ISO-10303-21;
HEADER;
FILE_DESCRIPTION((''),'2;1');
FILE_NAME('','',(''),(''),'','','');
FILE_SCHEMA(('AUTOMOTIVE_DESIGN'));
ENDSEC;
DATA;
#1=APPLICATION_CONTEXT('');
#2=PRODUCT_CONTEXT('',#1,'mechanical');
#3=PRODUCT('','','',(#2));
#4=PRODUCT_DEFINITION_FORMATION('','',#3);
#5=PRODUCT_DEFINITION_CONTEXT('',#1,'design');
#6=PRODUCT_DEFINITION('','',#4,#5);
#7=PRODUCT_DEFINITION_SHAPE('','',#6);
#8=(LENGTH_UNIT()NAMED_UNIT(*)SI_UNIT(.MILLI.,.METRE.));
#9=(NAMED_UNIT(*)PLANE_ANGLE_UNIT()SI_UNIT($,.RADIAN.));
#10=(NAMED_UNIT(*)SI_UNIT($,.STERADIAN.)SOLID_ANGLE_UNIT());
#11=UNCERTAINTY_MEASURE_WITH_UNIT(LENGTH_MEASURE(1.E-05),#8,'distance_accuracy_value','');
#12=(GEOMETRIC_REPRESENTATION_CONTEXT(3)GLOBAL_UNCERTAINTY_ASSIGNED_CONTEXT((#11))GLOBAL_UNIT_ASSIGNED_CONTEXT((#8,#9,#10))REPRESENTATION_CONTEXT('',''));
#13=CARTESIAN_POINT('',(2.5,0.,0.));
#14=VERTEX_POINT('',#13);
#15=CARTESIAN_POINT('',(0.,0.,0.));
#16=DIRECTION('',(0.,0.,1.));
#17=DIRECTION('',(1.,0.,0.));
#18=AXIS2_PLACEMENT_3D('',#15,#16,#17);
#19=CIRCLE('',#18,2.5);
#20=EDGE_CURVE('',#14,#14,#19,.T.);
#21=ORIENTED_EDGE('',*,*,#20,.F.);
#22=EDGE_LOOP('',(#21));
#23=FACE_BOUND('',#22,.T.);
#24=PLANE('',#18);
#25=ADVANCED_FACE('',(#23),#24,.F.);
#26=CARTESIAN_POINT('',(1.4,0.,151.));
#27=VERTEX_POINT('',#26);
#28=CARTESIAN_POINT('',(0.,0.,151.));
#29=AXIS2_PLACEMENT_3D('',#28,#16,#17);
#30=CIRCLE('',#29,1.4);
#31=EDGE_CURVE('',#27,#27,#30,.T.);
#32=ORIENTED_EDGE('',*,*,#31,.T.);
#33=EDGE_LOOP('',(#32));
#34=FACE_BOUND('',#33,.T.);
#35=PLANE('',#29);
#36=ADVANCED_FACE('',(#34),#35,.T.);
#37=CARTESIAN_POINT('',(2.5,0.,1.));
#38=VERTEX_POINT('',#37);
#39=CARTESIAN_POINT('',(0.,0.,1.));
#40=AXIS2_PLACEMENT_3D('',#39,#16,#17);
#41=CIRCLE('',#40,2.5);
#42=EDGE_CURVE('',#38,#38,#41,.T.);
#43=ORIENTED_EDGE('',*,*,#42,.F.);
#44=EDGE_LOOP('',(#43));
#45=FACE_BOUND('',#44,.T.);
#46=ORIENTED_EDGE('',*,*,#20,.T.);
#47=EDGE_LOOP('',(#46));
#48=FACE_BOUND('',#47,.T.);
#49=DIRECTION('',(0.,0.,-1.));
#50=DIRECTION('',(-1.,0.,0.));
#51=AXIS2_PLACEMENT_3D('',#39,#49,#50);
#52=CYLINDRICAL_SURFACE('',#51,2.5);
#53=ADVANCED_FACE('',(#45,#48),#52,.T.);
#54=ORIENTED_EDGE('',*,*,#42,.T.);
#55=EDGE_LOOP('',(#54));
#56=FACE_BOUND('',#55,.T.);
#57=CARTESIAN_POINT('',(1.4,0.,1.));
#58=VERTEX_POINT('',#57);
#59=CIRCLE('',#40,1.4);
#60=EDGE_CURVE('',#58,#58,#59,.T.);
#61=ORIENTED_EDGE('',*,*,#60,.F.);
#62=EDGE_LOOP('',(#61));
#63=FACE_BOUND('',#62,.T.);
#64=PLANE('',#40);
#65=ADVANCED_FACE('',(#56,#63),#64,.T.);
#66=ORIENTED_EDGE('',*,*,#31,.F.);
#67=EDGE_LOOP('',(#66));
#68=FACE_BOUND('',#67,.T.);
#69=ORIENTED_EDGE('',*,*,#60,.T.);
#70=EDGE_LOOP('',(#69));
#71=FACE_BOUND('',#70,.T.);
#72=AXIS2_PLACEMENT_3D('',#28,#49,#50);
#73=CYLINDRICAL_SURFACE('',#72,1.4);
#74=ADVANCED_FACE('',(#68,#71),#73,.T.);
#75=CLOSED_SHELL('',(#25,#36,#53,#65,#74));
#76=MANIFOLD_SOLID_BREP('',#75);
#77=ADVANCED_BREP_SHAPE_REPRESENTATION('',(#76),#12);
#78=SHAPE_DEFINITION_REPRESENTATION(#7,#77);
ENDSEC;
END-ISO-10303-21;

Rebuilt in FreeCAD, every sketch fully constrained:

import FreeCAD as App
import Part
import Sketcher

V = App.Vector

doc = App.newDocument("Part")
body = doc.addObject("PartDesign::Body", "Body")

# Sketch on XY plane
sketch1 = body.newObject("Sketcher::SketchObject", "Sketch")
sketch1.AttachmentSupport = (doc.getObject("XY_Plane"), [""])
sketch1.MapMode = "FlatFace"
sketch1.addGeometry(Part.Circle(V(0, 0, 0), V(0, 0, 1), 2.5), False)
sketch1.addConstraint([
    Sketcher.Constraint("Coincident", 0, 3, -1, 1),
    Sketcher.Constraint("Diameter", 0, 5.0),
])
pad1 = body.newObject("PartDesign::Pad", "Pad")
pad1.Profile = sketch1
pad1.Length = 1

# Sketch on XY plane
sketch2 = body.newObject("Sketcher::SketchObject", "Sketch001")
sketch2.AttachmentSupport = (doc.getObject("XY_Plane"), [""])
sketch2.MapMode = "FlatFace"
sketch2.AttachmentOffset = App.Placement(V(0, 0, 1), App.Rotation())
sketch2.addGeometry(Part.Circle(V(0, 0, 0), V(0, 0, 1), 1.4), False)
sketch2.addConstraint([
    Sketcher.Constraint("Coincident", 0, 3, -1, 1),
    Sketcher.Constraint("Diameter", 0, 2.8),
])
pad2 = body.newObject("PartDesign::Pad", "Pad001")
pad2.Profile = sketch2
pad2.Length = 150

doc.recompute()
